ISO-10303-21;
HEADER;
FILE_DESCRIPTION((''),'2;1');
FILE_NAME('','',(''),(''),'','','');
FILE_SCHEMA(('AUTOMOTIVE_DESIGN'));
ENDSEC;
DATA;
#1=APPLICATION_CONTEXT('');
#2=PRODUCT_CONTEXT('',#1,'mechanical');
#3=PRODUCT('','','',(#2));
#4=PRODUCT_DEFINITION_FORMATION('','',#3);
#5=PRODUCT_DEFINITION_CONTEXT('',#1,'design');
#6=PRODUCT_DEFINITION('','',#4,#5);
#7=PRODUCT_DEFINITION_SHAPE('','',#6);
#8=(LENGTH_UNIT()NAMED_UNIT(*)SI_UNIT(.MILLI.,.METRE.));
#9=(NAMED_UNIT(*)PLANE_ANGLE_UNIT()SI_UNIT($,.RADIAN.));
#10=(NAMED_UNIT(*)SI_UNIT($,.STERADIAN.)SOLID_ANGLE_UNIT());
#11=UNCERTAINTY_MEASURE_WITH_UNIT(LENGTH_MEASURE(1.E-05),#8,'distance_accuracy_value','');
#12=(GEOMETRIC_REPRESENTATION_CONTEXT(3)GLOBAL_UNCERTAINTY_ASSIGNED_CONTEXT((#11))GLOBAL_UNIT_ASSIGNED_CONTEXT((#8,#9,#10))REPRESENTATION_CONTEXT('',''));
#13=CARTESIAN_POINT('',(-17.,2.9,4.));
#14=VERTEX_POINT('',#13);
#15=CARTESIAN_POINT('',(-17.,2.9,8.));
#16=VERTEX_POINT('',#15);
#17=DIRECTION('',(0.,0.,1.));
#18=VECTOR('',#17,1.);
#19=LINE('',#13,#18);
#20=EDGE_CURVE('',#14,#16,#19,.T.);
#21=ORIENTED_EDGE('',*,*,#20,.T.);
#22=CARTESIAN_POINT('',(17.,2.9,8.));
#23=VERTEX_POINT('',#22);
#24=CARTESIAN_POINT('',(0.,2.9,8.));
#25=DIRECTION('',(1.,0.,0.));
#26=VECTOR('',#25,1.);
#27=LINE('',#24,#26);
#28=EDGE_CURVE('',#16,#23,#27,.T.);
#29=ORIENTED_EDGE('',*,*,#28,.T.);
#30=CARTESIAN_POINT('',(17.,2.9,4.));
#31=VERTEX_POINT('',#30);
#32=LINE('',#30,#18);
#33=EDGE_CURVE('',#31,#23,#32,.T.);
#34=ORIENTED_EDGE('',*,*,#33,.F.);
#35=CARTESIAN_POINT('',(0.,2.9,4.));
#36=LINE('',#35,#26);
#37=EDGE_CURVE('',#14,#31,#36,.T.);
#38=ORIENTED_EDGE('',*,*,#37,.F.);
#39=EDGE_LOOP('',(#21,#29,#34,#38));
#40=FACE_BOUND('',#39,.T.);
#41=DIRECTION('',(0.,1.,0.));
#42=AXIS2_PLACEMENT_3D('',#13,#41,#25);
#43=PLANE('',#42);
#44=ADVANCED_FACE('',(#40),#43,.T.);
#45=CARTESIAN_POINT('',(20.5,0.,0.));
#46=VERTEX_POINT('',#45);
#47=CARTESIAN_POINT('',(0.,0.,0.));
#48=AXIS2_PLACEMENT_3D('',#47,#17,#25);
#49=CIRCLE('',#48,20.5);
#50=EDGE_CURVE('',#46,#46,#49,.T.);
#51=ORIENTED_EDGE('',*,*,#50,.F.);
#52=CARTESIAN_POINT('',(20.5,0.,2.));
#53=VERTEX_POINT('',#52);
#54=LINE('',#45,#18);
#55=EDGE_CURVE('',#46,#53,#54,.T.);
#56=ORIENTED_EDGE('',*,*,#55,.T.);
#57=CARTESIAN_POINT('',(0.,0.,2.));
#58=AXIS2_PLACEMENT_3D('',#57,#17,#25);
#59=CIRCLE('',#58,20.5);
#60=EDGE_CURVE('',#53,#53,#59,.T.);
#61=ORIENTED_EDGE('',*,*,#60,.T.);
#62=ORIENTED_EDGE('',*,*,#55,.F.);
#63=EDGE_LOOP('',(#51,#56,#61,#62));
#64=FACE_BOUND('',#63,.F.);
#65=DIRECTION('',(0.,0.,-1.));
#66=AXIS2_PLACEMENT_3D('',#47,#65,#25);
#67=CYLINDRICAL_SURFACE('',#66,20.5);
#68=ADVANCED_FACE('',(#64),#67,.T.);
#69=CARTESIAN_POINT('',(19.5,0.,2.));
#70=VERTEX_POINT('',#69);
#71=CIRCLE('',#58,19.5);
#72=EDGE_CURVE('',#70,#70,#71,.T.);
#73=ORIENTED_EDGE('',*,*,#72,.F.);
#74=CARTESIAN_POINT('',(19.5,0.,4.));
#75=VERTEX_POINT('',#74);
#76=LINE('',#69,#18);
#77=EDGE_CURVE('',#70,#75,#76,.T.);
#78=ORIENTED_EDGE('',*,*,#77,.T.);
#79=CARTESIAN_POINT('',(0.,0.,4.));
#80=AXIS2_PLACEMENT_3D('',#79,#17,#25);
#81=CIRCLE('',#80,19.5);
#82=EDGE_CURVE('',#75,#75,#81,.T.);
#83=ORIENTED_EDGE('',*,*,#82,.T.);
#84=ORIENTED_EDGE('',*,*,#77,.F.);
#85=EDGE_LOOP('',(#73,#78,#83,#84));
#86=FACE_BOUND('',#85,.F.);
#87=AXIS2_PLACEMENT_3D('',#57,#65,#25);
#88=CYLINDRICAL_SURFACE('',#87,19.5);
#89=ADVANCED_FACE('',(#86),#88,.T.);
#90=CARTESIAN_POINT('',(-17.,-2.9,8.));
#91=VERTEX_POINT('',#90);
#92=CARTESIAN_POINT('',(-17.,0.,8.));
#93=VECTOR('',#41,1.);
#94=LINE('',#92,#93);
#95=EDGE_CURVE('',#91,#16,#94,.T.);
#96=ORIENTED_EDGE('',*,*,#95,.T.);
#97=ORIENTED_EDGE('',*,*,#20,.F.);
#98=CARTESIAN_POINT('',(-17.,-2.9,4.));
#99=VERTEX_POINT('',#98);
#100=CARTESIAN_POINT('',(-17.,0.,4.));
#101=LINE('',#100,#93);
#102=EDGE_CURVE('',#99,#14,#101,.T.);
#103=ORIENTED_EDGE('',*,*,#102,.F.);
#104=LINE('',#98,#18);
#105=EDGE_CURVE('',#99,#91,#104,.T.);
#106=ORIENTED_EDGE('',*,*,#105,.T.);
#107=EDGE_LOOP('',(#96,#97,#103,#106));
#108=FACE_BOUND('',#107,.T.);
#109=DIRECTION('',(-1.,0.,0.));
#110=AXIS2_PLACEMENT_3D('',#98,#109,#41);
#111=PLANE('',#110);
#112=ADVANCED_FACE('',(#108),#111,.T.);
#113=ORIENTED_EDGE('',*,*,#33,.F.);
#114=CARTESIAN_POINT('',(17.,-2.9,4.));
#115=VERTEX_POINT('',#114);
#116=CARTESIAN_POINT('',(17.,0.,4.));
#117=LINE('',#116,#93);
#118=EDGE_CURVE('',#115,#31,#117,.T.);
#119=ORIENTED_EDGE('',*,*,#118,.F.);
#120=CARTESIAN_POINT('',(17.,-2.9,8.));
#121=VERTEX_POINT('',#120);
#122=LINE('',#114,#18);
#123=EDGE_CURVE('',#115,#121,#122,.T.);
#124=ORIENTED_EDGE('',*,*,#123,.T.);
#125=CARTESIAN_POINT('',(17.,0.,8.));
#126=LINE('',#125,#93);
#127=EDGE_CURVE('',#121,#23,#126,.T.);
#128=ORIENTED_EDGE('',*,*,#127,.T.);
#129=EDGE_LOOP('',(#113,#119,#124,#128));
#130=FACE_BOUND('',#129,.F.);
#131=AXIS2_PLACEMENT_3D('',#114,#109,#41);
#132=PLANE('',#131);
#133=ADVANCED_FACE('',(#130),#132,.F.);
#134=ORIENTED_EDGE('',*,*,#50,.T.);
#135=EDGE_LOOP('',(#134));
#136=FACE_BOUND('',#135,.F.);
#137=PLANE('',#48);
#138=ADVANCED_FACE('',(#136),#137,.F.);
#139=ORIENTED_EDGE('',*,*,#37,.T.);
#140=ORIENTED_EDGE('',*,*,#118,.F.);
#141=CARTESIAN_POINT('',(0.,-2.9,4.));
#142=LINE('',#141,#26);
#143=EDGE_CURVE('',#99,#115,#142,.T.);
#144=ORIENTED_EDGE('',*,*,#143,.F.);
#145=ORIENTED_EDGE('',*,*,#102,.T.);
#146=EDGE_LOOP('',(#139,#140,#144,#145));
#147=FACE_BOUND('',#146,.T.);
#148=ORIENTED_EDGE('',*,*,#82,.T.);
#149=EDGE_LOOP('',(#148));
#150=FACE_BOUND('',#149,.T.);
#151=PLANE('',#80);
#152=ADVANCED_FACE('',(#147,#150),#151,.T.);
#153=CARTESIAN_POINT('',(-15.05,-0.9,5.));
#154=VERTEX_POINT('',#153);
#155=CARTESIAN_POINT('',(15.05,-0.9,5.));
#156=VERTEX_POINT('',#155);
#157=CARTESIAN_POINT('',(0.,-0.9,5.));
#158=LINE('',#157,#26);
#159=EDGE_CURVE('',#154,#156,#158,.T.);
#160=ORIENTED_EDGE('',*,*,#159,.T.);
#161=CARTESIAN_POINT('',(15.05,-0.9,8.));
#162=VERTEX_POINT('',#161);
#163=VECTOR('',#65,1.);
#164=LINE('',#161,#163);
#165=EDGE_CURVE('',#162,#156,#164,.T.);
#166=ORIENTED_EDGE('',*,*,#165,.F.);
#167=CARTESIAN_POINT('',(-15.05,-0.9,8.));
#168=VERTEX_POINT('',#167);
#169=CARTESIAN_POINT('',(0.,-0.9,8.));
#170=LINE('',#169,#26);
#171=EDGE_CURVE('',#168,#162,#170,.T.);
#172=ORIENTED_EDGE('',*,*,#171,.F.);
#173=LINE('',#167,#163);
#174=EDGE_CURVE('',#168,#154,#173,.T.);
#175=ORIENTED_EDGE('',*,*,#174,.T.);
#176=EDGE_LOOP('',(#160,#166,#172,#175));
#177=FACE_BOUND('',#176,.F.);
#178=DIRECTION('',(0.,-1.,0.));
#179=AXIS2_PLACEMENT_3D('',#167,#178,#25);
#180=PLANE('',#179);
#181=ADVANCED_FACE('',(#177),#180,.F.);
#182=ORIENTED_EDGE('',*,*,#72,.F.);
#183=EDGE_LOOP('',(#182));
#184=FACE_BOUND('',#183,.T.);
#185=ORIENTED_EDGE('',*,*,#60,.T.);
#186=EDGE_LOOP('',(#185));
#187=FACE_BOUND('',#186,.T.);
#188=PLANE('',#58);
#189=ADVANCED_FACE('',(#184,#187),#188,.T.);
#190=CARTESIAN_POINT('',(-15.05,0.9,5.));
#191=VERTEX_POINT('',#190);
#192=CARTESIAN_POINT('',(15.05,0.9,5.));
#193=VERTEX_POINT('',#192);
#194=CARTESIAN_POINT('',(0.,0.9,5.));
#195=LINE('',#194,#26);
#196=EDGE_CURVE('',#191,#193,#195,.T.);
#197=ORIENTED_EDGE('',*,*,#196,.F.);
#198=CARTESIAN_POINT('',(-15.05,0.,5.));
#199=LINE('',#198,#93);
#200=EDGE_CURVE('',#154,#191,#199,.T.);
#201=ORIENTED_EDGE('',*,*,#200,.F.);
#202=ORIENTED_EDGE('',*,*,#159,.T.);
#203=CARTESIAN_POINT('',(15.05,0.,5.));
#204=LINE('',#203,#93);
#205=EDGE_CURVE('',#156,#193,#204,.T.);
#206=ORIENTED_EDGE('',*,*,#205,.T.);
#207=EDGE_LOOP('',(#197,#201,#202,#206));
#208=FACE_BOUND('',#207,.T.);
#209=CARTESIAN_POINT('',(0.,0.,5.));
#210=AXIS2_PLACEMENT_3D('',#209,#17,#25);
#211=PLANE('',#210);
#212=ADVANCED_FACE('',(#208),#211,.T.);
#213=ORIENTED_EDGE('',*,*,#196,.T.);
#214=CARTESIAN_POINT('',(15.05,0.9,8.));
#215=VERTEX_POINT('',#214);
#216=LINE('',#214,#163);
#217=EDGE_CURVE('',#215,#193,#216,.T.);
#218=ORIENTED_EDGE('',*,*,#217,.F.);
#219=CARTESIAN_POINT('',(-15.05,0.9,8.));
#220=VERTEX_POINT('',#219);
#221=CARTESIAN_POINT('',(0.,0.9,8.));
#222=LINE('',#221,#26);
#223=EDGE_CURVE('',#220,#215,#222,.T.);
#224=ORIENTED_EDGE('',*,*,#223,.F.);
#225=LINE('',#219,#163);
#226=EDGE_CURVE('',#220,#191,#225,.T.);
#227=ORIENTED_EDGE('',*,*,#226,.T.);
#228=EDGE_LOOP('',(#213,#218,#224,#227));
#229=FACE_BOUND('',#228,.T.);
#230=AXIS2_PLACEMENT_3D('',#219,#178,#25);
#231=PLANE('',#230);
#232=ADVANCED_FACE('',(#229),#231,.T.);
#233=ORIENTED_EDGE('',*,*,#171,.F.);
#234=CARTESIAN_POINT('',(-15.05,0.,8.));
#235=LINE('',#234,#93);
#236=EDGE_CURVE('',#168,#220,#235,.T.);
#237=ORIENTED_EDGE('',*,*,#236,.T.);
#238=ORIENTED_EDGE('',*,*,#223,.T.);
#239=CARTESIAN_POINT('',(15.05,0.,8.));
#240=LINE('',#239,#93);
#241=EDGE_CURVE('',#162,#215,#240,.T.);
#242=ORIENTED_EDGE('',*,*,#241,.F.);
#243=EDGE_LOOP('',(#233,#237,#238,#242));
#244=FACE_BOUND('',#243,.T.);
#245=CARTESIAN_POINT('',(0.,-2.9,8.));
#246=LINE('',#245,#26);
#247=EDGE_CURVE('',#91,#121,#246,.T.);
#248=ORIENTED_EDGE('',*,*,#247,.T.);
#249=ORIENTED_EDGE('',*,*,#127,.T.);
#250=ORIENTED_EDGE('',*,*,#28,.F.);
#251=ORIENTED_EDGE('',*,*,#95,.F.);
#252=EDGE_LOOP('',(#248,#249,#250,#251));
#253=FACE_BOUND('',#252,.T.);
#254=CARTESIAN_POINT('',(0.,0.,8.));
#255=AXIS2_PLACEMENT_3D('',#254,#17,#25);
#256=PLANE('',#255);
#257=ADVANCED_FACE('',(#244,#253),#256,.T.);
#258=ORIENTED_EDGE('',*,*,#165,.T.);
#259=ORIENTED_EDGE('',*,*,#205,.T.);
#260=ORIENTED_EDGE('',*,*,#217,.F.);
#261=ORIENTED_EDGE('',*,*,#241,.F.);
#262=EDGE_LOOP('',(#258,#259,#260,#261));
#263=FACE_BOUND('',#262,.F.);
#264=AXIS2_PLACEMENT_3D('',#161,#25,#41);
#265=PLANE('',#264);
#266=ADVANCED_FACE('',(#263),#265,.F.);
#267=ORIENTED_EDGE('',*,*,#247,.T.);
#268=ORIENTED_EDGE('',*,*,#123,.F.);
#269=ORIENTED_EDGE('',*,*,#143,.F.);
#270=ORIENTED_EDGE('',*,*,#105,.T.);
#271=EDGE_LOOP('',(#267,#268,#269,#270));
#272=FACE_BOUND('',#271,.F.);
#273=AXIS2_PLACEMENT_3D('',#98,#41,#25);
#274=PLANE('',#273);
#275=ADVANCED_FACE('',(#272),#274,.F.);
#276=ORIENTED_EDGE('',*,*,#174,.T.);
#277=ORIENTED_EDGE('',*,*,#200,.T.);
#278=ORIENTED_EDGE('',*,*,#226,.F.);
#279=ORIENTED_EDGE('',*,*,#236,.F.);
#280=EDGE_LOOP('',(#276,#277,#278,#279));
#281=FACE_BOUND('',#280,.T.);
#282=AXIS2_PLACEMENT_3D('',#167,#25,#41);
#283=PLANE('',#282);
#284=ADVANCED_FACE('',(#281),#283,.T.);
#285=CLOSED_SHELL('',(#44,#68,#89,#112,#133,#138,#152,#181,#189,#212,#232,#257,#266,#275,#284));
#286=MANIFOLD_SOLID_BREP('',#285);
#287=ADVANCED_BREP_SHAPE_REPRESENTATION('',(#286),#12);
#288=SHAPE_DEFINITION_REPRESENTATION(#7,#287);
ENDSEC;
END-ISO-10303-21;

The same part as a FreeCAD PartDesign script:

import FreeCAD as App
import Part
import Sketcher

V = App.Vector


def add_polygon(sketch, points):
    """Adds a closed chain of lines whose ends are joined by coincident constraints."""
    first, n = sketch.GeometryCount, len(points)
    for a, b in zip(points, points[1:] + points[:1]):
        sketch.addGeometry(Part.LineSegment(App.Vector(*a, 0), App.Vector(*b, 0)), False)
    for i in range(n):
        sketch.addConstraint(Sketcher.Constraint("Coincident", first + i, 2, first + (i + 1) % n, 1))

doc = App.newDocument("Part")
params = doc.addObject("Spreadsheet::Sheet", "Params")
for row, (alias, value) in enumerate([
    ("sketch1_diameter", "41 mm"),
    ("pad1_length", "2 mm"),
    ("sketch2_diameter", "39 mm"),
    ("pad2_length", "2 mm"),
    ("sketch3_width", "34 mm"),
    ("sketch3_height", "5.8 mm"),
    ("pad3_length", "4 mm"),
    ("sketch4_width", "30.1 mm"),
    ("sketch4_height", "1.8 mm"),
    ("pocket1_length", "3 mm"),
], start=1):
    params.set(f"A{row}", alias)
    params.set(f"B{row}", "=" + value)
    params.setAlias(f"B{row}", alias)

body = doc.addObject("PartDesign::Body", "Body")

# Sketch on XY plane
sketch1 = doc.addObject("Sketcher::SketchObject", "Sketch")
body.addObject(sketch1)
sketch1.AttachmentSupport = (doc.XY_Plane, [""])
sketch1.MapMode = "FlatFace"
sketch1.addGeometry(Part.Circle(V(0, 0, 0), V(0, 0, 1), 20), False)
sketch1.addConstraint(Sketcher.Constraint("Coincident", 0, 3, -1, 1))
sketch1.addConstraint(Sketcher.Constraint("Diameter", 0, 41.0))
sketch1.setExpression("Constraints[1]", "Params.sketch1_diameter")
pad1 = doc.addObject("PartDesign::Pad", "Pad")
body.addObject(pad1)
pad1.Profile = sketch1
pad1.setExpression("Length", "Params.pad1_length")

# Sketch on XY plane
sketch2 = doc.addObject("Sketcher::SketchObject", "Sketch001")
body.addObject(sketch2)
sketch2.AttachmentSupport = (doc.XY_Plane, [""])
sketch2.MapMode = "FlatFace"
sketch2.AttachmentOffset = App.Placement(V(0, 0, 2), App.Rotation())
sketch2.addGeometry(Part.Circle(V(0, 0, 0), V(0, 0, 1), 20), False)
sketch2.addConstraint(Sketcher.Constraint("Coincident", 0, 3, -1, 1))
sketch2.addConstraint(Sketcher.Constraint("Diameter", 0, 39.0))
sketch2.setExpression("Constraints[1]", "Params.sketch2_diameter")
pad2 = doc.addObject("PartDesign::Pad", "Pad001")
body.addObject(pad2)
pad2.Profile = sketch2
pad2.setExpression("Length", "Params.pad2_length")

# Sketch on XY plane
sketch3 = doc.addObject("Sketcher::SketchObject", "Sketch002")
body.addObject(sketch3)
sketch3.AttachmentSupport = (doc.XY_Plane, [""])
sketch3.MapMode = "FlatFace"
sketch3.AttachmentOffset = App.Placement(V(0, 0, 4), App.Rotation())
add_polygon(sketch3, [(-17, 3), (-17, -3), (17, -3), (17, 3)])  # lines 0-3
sketch3.addConstraint(Sketcher.Constraint("Vertical", 0))
sketch3.addConstraint(Sketcher.Constraint("Horizontal", 1))
sketch3.addConstraint(Sketcher.Constraint("Vertical", 2))
sketch3.addConstraint(Sketcher.Constraint("Horizontal", 3))
sketch3.addConstraint(Sketcher.Constraint("Symmetric", 0, 2, 2, 2, -1, 1))
sketch3.addConstraint(Sketcher.Constraint("DistanceX", 1, 1, 1, 2, 34.0))
sketch3.addConstraint(Sketcher.Constraint("DistanceY", 0, 2, 0, 1, 5.8))
sketch3.setExpression("Constraints[9]", "Params.sketch3_width")
sketch3.setExpression("Constraints[10]", "Params.sketch3_height")
pad3 = doc.addObject("PartDesign::Pad", "Pad002")
body.addObject(pad3)
pad3.Profile = sketch3
pad3.setExpression("Length", "Params.pad3_length")

# Sketch on XY plane
sketch4 = doc.addObject("Sketcher::SketchObject", "Sketch003")
body.addObject(sketch4)
sketch4.AttachmentSupport = (doc.XY_Plane, [""])
sketch4.MapMode = "FlatFace"
sketch4.AttachmentOffset = App.Placement(V(0, 0, 8), App.Rotation())
add_polygon(sketch4, [(-15.1, 0.9), (-15.1, -0.9), (15.1, -0.9), (15.1, 0.9)])  # lines 0-3
sketch4.addConstraint(Sketcher.Constraint("Vertical", 0))
sketch4.addConstraint(Sketcher.Constraint("Horizontal", 1))
sketch4.addConstraint(Sketcher.Constraint("Vertical", 2))
sketch4.addConstraint(Sketcher.Constraint("Horizontal", 3))
sketch4.addConstraint(Sketcher.Constraint("Symmetric", 0, 2, 2, 2, -1, 1))
sketch4.addConstraint(Sketcher.Constraint("DistanceX", 1, 1, 1, 2, 30.1))
sketch4.addConstraint(Sketcher.Constraint("DistanceY", 0, 2, 0, 1, 1.8))
sketch4.setExpression("Constraints[9]", "Params.sketch4_width")
sketch4.setExpression("Constraints[10]", "Params.sketch4_height")
pocket1 = doc.addObject("PartDesign::Pocket", "Pocket")
body.addObject(pocket1)
pocket1.Profile = sketch4
pocket1.setExpression("Length", "Params.pocket1_length")

doc.recompute()
